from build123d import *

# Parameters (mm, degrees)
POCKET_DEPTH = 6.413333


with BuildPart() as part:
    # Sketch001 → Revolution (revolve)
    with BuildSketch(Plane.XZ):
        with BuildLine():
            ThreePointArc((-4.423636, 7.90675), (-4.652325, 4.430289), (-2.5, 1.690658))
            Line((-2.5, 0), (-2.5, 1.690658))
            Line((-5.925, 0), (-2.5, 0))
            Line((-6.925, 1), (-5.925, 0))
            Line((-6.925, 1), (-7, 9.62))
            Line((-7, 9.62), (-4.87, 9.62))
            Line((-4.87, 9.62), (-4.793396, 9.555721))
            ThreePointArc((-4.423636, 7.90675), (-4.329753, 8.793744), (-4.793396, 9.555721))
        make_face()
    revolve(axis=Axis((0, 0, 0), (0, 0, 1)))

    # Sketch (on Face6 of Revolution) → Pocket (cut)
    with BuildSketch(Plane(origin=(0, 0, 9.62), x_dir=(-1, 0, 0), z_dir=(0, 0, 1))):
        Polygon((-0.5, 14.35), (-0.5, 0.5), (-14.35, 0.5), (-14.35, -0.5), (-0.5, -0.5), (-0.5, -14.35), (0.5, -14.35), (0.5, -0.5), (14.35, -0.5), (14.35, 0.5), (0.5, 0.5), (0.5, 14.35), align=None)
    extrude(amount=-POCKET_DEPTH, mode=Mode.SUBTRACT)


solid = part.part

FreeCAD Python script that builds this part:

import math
import FreeCAD as App
import Part
import Sketcher

V = App.Vector
Q = App.Units.Quantity

doc = App.newDocument("Part")
body = doc.addObject("PartDesign::Body", "Body")

# Sketch on XZ plane
sketch1 = doc.addObject("Sketcher::SketchObject", "Sketch")
body.addObject(sketch1)
sketch1.AttachmentSupport = (doc.XZ_Plane, [""])
sketch1.MapMode = "FlatFace"
sketch1.addGeometry([
    Part.ArcOfCircle(Part.Circle(V(0, 5.87, 0), V(0, 0, 1), 4.87), math.radians(155), math.radians(239)),  # 0
    Part.ArcOfCircle(Part.Circle(V(-5.69, 8.49, 0), V(0, 0, 1), 1.39), math.radians(-25), math.radians(50)),  # 1
    Part.LineSegment(V(-4.79, 9.56, 0), V(-4.87, 9.62, 0)),  # 2
    Part.LineSegment(V(-4.87, 9.62, 0), V(-7, 9.62, 0)),  # 3
    Part.LineSegment(V(-7, 9.62, 0), V(-6.92, 1, 0)),  # 4
    Part.LineSegment(V(-6.92, 1, 0), V(-5.92, 0, 0)),  # 5
    Part.LineSegment(V(-5.92, 0, 0), V(-2.5, 0, 0)),  # 6
    Part.LineSegment(V(-2.5, 0, 0), V(-2.5, 1.69, 0)),  # 7
], False)
sketch1.addConstraint([
    Sketcher.Constraint("Tangent", 0, 1, 1, 1),
    Sketcher.Constraint("Coincident", 1, 2, 2, 1),
    Sketcher.Constraint("Coincident", 2, 2, 3, 1),
    Sketcher.Constraint("Coincident", 3, 2, 4, 1),
    Sketcher.Constraint("Coincident", 4, 2, 5, 1),
    Sketcher.Constraint("Coincident", 5, 2, 6, 1),
    Sketcher.Constraint("Coincident", 6, 2, 7, 1),
    Sketcher.Constraint("Coincident", 7, 2, 0, 2),
    Sketcher.Constraint("Horizontal", 3),
    Sketcher.Constraint("Horizontal", 6),
    Sketcher.Constraint("Vertical", 7),
    Sketcher.Constraint("PointOnObject", 5, 2, -1),
    Sketcher.Constraint("Angle", 5, Q("-45 deg")),
    Sketcher.Constraint("DistanceX", 3, 2, -1, 1, Q("7 mm")),
    Sketcher.Constraint("DistanceY", -1, 1, 4, 2, Q("1 mm")),
    Sketcher.Constraint("Distance", 2, Q("0.1 mm")),
    Sketcher.Constraint("DistanceX", 3, 2, 3, 1, Q("2.13 mm")),
    Sketcher.Constraint("DistanceX", 6, 2, -1, 1, Q("2.5 mm")),
    Sketcher.Constraint("DistanceX", 6, 1, 6, 2, Q("3.425 mm")),
    Sketcher.Constraint("DistanceY", -1, 1, 0, 3, Q("5.870001 mm")),
    Sketcher.Constraint("DistanceY", -1, 1, 2, 2, Q("9.62 mm")),
    Sketcher.Constraint("Radius", 0, Q("4.870002 mm")),
    Sketcher.Constraint("Radius", 1, Q("1.392394 mm")),
    Sketcher.Constraint("DistanceX", 1, 2, 0, 3, Q("4.793399 mm")),
    Sketcher.Constraint("DistanceY", 7, 1, 7, 2, Q("1.690658 mm")),
])
revolution = doc.addObject("PartDesign::Revolution", "Revolution")
body.addObject(revolution)
revolution.Profile = sketch1
revolution.ReferenceAxis = (sketch1, ["V_Axis"])
revolution.Angle = 360

# Sketch on XY plane
sketch2 = doc.addObject("Sketcher::SketchObject", "Sketch001")
body.addObject(sketch2)
sketch2.AttachmentSupport = (doc.XY_Plane, [""])
sketch2.MapMode = "FlatFace"
sketch2.AttachmentOffset = App.Placement(V(0, 0, 9.62), App.Rotation())
sketch2.addGeometry([
    Part.LineSegment(V(0.5, -14.3, 0), V(0.5, -0.5, 0)),  # 0
    Part.LineSegment(V(0.5, -0.5, 0), V(14.3, -0.5, 0)),  # 1
    Part.LineSegment(V(14.3, -0.5, 0), V(14.3, 0.5, 0)),  # 2
    Part.LineSegment(V(14.3, 0.5, 0), V(0.5, 0.5, 0)),  # 3
    Part.LineSegment(V(0.5, 0.5, 0), V(0.5, 14.3, 0)),  # 4
    Part.LineSegment(V(0.5, 14.3, 0), V(-0.5, 14.3, 0)),  # 5
    Part.LineSegment(V(-0.5, 14.3, 0), V(-0.5, 0.5, 0)),  # 6
    Part.LineSegment(V(-0.5, 0.5, 0), V(-14.3, 0.5, 0)),  # 7
    Part.LineSegment(V(-14.3, 0.5, 0), V(-14.3, -0.5, 0)),  # 8
    Part.LineSegment(V(-14.3, -0.5, 0), V(-0.5, -0.5, 0)),  # 9
    Part.LineSegment(V(-0.5, -0.5, 0), V(-0.5, -14.3, 0)),  # 10
    Part.LineSegment(V(-0.5, -14.3, 0), V(0.5, -14.3, 0)),  # 11
], False)
sketch2.addConstraint([
    Sketcher.Constraint("Coincident", 0, 2, 1, 1),
    Sketcher.Constraint("Coincident", 1, 2, 2, 1),
    Sketcher.Constraint("Coincident", 2, 2, 3, 1),
    Sketcher.Constraint("Coincident", 3, 2, 4, 1),
    Sketcher.Constraint("Coincident", 4, 2, 5, 1),
    Sketcher.Constraint("Coincident", 5, 2, 6, 1),
    Sketcher.Constraint("Coincident", 6, 2, 7, 1),
    Sketcher.Constraint("Coincident", 7, 2, 8, 1),
    Sketcher.Constraint("Coincident", 8, 2, 9, 1),
    Sketcher.Constraint("Coincident", 9, 2, 10, 1),
    Sketcher.Constraint("Coincident", 10, 2, 11, 1),
    Sketcher.Constraint("Coincident", 11, 2, 0, 1),
    Sketcher.Constraint("Vertical", 0),
    Sketcher.Constraint("Horizontal", 1),
    Sketcher.Constraint("Vertical", 2),
    Sketcher.Constraint("Horizontal", 3),
    Sketcher.Constraint("Vertical", 4),
    Sketcher.Constraint("Horizontal", 5),
    Sketcher.Constraint("Vertical", 6),
    Sketcher.Constraint("Horizontal", 7),
    Sketcher.Constraint("Vertical", 8),
    Sketcher.Constraint("Horizontal", 9),
    Sketcher.Constraint("Vertical", 10),
    Sketcher.Constraint("Horizontal", 11),
    Sketcher.Constraint("Symmetric", 0, 2, 6, 2, -1, 1),
    Sketcher.Constraint("Symmetric", 2, 2, 8, 2, -1, 1),
    Sketcher.Constraint("Symmetric", 4, 2, 10, 2, -1, 1),
    Sketcher.Constraint("Symmetric", 3, 2, 6, 2, -2),
    Sketcher.Constraint("Equal", 9, 0),
    Sketcher.Constraint("Equal", 11, 2),
    Sketcher.Constraint("DistanceX", 5, 2, 5, 1, Q("1 mm")),
    Sketcher.Constraint("DistanceX", 1, 1, 1, 2, Q("13.85 mm")),
])
pocket1 = doc.addObject("PartDesign::Pocket", "Pocket")
body.addObject(pocket1)
pocket1.Profile = sketch2
pocket1.Length = 6.413333

doc.recompute()
